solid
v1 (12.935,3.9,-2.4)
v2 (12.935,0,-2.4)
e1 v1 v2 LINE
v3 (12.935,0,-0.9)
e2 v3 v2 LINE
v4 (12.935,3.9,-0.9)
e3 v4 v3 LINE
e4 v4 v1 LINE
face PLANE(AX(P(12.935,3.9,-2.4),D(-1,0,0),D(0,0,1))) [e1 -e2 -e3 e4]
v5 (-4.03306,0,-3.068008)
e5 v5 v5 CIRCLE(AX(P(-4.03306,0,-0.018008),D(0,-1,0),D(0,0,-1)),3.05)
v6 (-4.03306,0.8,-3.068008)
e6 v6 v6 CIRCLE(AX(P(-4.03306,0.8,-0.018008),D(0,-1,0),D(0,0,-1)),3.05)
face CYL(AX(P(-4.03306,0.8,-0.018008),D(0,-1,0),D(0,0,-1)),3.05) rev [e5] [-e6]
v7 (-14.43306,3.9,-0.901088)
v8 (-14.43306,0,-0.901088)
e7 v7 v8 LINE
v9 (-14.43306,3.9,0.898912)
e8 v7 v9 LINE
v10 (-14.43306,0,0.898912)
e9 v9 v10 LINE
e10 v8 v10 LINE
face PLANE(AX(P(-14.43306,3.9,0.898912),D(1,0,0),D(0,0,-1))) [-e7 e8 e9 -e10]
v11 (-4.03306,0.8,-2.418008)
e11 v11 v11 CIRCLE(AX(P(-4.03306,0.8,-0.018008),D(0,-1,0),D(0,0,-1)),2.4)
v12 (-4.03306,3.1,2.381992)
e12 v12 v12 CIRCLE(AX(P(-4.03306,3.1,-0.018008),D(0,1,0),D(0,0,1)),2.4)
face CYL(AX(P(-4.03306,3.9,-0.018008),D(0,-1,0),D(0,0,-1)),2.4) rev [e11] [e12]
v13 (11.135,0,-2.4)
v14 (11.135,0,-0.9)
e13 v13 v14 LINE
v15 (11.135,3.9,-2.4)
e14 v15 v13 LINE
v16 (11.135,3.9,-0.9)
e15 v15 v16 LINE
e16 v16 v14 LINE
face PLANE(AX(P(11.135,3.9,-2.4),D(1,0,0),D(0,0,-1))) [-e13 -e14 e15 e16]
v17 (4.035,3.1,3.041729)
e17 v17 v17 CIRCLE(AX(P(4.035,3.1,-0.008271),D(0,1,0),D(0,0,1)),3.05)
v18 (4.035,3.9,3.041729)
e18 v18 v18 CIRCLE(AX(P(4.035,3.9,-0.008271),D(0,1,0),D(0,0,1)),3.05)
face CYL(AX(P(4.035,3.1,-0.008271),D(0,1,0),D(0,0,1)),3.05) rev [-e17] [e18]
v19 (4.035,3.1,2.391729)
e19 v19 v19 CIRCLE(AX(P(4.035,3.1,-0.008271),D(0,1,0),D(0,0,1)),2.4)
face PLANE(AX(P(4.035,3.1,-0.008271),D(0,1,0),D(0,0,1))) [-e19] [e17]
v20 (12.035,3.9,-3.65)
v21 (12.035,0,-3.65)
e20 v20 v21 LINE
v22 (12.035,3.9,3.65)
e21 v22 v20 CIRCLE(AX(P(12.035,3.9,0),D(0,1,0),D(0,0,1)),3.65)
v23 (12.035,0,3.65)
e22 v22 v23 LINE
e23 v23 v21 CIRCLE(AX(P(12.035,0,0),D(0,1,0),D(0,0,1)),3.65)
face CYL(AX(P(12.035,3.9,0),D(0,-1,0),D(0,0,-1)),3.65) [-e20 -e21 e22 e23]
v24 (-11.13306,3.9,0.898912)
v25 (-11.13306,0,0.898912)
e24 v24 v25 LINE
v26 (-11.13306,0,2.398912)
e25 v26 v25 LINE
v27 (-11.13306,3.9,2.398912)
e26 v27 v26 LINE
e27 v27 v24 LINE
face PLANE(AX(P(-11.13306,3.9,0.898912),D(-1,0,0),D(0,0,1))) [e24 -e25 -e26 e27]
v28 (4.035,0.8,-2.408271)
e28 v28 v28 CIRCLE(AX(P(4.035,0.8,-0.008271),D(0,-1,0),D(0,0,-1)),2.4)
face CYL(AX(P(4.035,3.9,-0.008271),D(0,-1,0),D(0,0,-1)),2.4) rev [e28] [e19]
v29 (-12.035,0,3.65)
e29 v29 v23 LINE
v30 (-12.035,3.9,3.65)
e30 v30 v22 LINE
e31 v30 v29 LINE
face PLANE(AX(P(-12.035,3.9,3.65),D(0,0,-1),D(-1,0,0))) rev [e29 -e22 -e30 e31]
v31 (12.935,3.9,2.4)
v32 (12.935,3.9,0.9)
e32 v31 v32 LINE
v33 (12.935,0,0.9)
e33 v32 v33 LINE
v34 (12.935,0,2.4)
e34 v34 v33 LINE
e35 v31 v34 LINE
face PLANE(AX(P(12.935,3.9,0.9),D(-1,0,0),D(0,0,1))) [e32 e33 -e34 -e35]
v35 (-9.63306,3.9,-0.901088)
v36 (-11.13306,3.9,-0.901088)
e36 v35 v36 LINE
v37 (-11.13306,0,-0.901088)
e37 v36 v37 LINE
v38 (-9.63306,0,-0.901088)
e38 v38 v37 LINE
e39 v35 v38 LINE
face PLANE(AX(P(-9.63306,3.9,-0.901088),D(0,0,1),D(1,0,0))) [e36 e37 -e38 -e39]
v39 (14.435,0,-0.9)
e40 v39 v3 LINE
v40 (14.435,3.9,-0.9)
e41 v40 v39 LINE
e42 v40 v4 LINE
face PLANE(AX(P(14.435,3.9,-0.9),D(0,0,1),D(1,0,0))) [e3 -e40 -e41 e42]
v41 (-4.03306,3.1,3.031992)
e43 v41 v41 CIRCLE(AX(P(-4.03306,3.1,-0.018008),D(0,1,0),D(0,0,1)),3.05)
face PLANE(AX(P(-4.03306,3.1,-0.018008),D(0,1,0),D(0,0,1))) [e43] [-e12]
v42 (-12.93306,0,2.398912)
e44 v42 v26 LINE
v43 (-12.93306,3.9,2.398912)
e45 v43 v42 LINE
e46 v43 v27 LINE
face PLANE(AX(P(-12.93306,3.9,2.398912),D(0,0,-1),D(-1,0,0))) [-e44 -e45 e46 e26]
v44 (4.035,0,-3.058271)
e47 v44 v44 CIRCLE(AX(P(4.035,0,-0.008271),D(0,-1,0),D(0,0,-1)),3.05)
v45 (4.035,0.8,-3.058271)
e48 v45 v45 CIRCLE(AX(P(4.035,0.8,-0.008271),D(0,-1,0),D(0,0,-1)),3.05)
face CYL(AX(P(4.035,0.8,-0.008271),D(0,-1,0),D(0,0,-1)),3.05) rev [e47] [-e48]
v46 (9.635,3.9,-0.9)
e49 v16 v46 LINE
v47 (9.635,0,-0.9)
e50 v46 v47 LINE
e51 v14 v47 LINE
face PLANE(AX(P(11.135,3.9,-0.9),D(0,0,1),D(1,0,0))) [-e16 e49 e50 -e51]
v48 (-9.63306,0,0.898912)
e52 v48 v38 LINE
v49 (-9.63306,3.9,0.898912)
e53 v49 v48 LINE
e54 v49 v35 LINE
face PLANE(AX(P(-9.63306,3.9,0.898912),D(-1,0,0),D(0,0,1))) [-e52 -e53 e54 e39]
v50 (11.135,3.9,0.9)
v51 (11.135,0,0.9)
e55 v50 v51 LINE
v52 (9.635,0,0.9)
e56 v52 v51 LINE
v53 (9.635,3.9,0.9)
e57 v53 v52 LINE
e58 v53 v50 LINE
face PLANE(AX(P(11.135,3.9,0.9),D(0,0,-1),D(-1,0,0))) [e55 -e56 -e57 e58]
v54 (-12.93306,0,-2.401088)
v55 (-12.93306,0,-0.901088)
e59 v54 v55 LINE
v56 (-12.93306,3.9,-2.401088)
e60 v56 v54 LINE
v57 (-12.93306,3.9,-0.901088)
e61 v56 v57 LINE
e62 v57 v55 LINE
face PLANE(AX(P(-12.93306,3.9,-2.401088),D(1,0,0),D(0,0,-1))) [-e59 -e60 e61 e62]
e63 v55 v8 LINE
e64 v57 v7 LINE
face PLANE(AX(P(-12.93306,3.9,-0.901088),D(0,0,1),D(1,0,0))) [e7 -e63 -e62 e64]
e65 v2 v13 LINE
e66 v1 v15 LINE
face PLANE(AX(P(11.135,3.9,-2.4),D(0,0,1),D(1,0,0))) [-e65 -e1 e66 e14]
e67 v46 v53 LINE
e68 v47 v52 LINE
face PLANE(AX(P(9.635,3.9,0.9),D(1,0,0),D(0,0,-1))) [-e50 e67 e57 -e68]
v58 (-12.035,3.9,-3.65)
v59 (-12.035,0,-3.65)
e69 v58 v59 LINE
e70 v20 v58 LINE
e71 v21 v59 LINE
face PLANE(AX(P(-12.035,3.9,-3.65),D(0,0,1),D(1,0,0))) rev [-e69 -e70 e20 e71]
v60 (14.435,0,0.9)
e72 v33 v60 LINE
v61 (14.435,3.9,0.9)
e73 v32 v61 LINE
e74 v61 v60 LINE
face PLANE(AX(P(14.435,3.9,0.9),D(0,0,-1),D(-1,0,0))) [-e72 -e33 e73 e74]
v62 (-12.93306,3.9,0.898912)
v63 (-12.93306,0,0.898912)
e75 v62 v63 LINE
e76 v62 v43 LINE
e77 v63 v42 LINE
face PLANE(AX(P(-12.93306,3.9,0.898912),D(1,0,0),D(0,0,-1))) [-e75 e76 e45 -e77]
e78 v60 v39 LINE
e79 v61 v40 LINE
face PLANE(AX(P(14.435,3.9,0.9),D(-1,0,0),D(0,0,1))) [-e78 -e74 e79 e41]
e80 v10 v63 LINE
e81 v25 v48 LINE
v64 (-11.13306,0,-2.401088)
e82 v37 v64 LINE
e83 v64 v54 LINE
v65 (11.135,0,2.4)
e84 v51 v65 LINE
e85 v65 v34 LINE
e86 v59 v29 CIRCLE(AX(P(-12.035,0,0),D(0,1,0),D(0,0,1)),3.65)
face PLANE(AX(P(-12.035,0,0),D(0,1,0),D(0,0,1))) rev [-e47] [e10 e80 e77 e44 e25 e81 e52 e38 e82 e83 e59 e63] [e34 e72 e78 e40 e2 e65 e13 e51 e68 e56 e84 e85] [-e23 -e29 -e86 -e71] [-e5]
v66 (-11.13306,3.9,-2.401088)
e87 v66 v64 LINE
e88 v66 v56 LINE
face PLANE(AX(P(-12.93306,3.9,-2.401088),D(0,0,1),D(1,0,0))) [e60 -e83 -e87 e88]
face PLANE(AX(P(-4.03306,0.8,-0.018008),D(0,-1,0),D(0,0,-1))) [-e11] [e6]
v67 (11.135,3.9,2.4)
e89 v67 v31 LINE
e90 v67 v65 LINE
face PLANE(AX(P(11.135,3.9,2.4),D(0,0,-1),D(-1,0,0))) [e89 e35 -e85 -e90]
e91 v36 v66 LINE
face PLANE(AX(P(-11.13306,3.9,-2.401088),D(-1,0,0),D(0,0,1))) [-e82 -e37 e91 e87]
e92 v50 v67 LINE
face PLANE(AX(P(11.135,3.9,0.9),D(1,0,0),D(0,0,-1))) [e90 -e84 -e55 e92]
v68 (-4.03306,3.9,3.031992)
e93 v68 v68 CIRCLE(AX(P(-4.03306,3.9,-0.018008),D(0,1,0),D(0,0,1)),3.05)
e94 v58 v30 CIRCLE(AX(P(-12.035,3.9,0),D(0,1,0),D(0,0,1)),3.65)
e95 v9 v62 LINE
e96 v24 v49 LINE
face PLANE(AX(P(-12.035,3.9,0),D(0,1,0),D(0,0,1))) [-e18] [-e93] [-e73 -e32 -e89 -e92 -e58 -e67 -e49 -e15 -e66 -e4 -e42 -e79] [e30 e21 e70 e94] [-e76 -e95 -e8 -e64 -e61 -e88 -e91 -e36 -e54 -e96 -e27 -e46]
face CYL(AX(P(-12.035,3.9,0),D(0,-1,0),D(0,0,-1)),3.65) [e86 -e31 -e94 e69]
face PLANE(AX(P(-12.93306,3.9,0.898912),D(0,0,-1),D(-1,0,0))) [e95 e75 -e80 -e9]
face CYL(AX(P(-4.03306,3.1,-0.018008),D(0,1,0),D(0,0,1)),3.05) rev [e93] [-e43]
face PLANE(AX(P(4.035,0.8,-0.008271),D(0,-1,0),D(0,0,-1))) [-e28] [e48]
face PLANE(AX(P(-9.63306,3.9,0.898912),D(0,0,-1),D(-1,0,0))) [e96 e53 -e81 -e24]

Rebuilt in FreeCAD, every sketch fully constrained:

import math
import FreeCAD as App
import Part
import Sketcher

V = App.Vector

doc = App.newDocument("Part")
params = doc.addObject("Spreadsheet::Sheet", "Params")
for row, (alias, value) in enumerate([
    ("sketch1_diameter", "4.8 mm"),
    ("sketch1_radius", "3.65 mm"),
    ("sketch1_width", "1.8 mm"),
    ("sketch1_width2", "1.5 mm"),
    ("sketch1_width3", "24.07 mm"),
    ("pad1_length", "3.9 mm"),
    ("sketch2_diameter", "6.1 mm"),
    ("pocket1_length", "0.8 mm"),
    ("sketch3_diameter", "6.1 mm"),
    ("pocket2_length", "0.8 mm"),
], start=1):
    params.set(f"A{row}", alias)
    params.set(f"B{row}", "=" + value)
    params.setAlias(f"B{row}", alias)

body = doc.addObject("PartDesign::Body", "Body")

# Sketch on XZ plane
sketch1 = body.newObject("Sketcher::SketchObject", "Sketch")
sketch1.AttachmentSupport = (doc.getObject("XZ_Plane"), [""])
sketch1.MapMode = "FlatFace"
sketch1.addGeometry(Part.LineSegment(V(12, -3.6, 0), V(-12, -3.6, 0)), False)
sketch1.addGeometry(Part.ArcOfCircle(Part.Circle(V(-12, 0, 0), V(0, 0, 1), 3.6), math.radians(90), math.radians(270)), False)
sketch1.addGeometry(Part.LineSegment(V(-12, 3.6, 0), V(12, 3.6, 0)), False)
sketch1.addGeometry(Part.ArcOfCircle(Part.Circle(V(12, 0, 0), V(0, 0, 1), 3.6), math.radians(-90), math.radians(90)), False)
sketch1.addGeometry(Part.LineSegment(V(11.1, -2.4, 0), V(12.9, -2.4, 0)), False)
sketch1.addGeometry(Part.LineSegment(V(12.9, -2.4, 0), V(12.9, -0.9, 0)), False)
sketch1.addGeometry(Part.LineSegment(V(12.9, -0.9, 0), V(14.4, -0.9, 0)), False)
sketch1.addGeometry(Part.LineSegment(V(14.4, -0.9, 0), V(14.4, 0.9, 0)), False)
sketch1.addGeometry(Part.LineSegment(V(14.4, 0.9, 0), V(12.9, 0.9, 0)), False)
sketch1.addGeometry(Part.LineSegment(V(12.9, 0.9, 0), V(12.9, 2.4, 0)), False)
sketch1.addGeometry(Part.LineSegment(V(12.9, 2.4, 0), V(11.1, 2.4, 0)), False)
sketch1.addGeometry(Part.LineSegment(V(11.1, 2.4, 0), V(11.1, 0.9, 0)), False)
sketch1.addGeometry(Part.LineSegment(V(11.1, 0.9, 0), V(9.6, 0.9, 0)), False)
sketch1.addGeometry(Part.LineSegment(V(9.6, 0.9, 0), V(9.6, -0.9, 0)), False)
sketch1.addGeometry(Part.LineSegment(V(9.6, -0.9, 0), V(11.1, -0.9, 0)), False)
sketch1.addGeometry(Part.LineSegment(V(11.1, -0.9, 0), V(11.1, -2.4, 0)), False)
sketch1.addGeometry(Part.Circle(V(4, 0, 0), V(0, 0, 1), 2.4), False)
sketch1.addGeometry(Part.LineSegment(V(-12.9, -2.4, 0), V(-11.1, -2.4, 0)), False)
sketch1.addGeometry(Part.LineSegment(V(-11.1, -2.4, 0), V(-11.1, -0.9, 0)), False)
sketch1.addGeometry(Part.LineSegment(V(-11.1, -0.9, 0), V(-9.6, -0.9, 0)), False)
sketch1.addGeometry(Part.LineSegment(V(-9.6, -0.9, 0), V(-9.6, 0.9, 0)), False)
sketch1.addGeometry(Part.LineSegment(V(-9.6, 0.9, 0), V(-11.1, 0.9, 0)), False)
sketch1.addGeometry(Part.LineSegment(V(-11.1, 0.9, 0), V(-11.1, 2.4, 0)), False)
sketch1.addGeometry(Part.LineSegment(V(-11.1, 2.4, 0), V(-12.9, 2.4, 0)), False)
sketch1.addGeometry(Part.LineSegment(V(-12.9, 2.4, 0), V(-12.9, 0.9, 0)), False)
sketch1.addGeometry(Part.LineSegment(V(-12.9, 0.9, 0), V(-14.4, 0.9, 0)), False)
sketch1.addGeometry(Part.LineSegment(V(-14.4, 0.9, 0), V(-14.4, -0.9, 0)), False)
sketch1.addGeometry(Part.LineSegment(V(-14.4, -0.9, 0), V(-12.9, -0.9, 0)), False)
sketch1.addGeometry(Part.LineSegment(V(-12.9, -0.9, 0), V(-12.9, -2.4, 0)), False)
sketch1.addGeometry(Part.Circle(V(-4, 0, 0), V(0, 0, 1), 2.4), False)
sketch1.addConstraint(Sketcher.Constraint("Tangent", 0, 2, 1, 2))
sketch1.addConstraint(Sketcher.Constraint("Tangent", 1, 1, 2, 1))
sketch1.addConstraint(Sketcher.Constraint("Tangent", 2, 2, 3, 2))
sketch1.addConstraint(Sketcher.Constraint("Tangent", 3, 1, 0, 1))
sketch1.addConstraint(Sketcher.Constraint("Coincident", 4, 2, 5, 1))
sketch1.addConstraint(Sketcher.Constraint("Coincident", 5, 2, 6, 1))
sketch1.addConstraint(Sketcher.Constraint("Coincident", 6, 2, 7, 1))
sketch1.addConstraint(Sketcher.Constraint("Coincident", 7, 2, 8, 1))
sketch1.addConstraint(Sketcher.Constraint("Coincident", 8, 2, 9, 1))
sketch1.addConstraint(Sketcher.Constraint("Coincident", 9, 2, 10, 1))
sketch1.addConstraint(Sketcher.Constraint("Coincident", 10, 2, 11, 1))
sketch1.addConstraint(Sketcher.Constraint("Coincident", 11, 2, 12, 1))
sketch1.addConstraint(Sketcher.Constraint("Coincident", 12, 2, 13, 1))
sketch1.addConstraint(Sketcher.Constraint("Coincident", 13, 2, 14, 1))
sketch1.addConstraint(Sketcher.Constraint("Coincident", 14, 2, 15, 1))
sketch1.addConstraint(Sketcher.Constraint("Coincident", 15, 2, 4, 1))
sketch1.addConstraint(Sketcher.Constraint("Coincident", 17, 2, 18, 1))
sketch1.addConstraint(Sketcher.Constraint("Coincident", 18, 2, 19, 1))
sketch1.addConstraint(Sketcher.Constraint("Coincident", 19, 2, 20, 1))
sketch1.addConstraint(Sketcher.Constraint("Coincident", 20, 2, 21, 1))
sketch1.addConstraint(Sketcher.Constraint("Coincident", 21, 2, 22, 1))
sketch1.addConstraint(Sketcher.Constraint("Coincident", 22, 2, 23, 1))
sketch1.addConstraint(Sketcher.Constraint("Coincident", 23, 2, 24, 1))
sketch1.addConstraint(Sketcher.Constraint("Coincident", 24, 2, 25, 1))
sketch1.addConstraint(Sketcher.Constraint("Coincident", 25, 2, 26, 1))
sketch1.addConstraint(Sketcher.Constraint("Coincident", 26, 2, 27, 1))
sketch1.addConstraint(Sketcher.Constraint("Coincident", 27, 2, 28, 1))
sketch1.addConstraint(Sketcher.Constraint("Coincident", 28, 2, 17, 1))
sketch1.addConstraint(Sketcher.Constraint("Horizontal", 0))
sketch1.addConstraint(Sketcher.Constraint("Horizontal", 2))
sketch1.addConstraint(Sketcher.Constraint("Horizontal", 4))
sketch1.addConstraint(Sketcher.Constraint("Vertical", 5))
sketch1.addConstraint(Sketcher.Constraint("Horizontal", 6))
sketch1.addConstraint(Sketcher.Constraint("Vertical", 7))
sketch1.addConstraint(Sketcher.Constraint("Horizontal", 8))
sketch1.addConstraint(Sketcher.Constraint("Vertical", 9))
sketch1.addConstraint(Sketcher.Constraint("Horizontal", 10))
sketch1.addConstraint(Sketcher.Constraint("Vertical", 11))
sketch1.addConstraint(Sketcher.Constraint("Horizontal", 12))
sketch1.addConstraint(Sketcher.Constraint("Vertical", 13))
sketch1.addConstraint(Sketcher.Constraint("Horizontal", 14))
sketch1.addConstraint(Sketcher.Constraint("Vertical", 15))
sketch1.addConstraint(Sketcher.Constraint("Horizontal", 17))
sketch1.addConstraint(Sketcher.Constraint("Vertical", 18))
sketch1.addConstraint(Sketcher.Constraint("Horizontal", 19))
sketch1.addConstraint(Sketcher.Constraint("Vertical", 20))
sketch1.addConstraint(Sketcher.Constraint("Horizontal", 21))
sketch1.addConstraint(Sketcher.Constraint("Vertical", 22))
sketch1.addConstraint(Sketcher.Constraint("Horizontal", 23))
sketch1.addConstraint(Sketcher.Constraint("Vertical", 24))
sketch1.addConstraint(Sketcher.Constraint("Horizontal", 25))
sketch1.addConstraint(Sketcher.Constraint("Vertical", 26))
sketch1.addConstraint(Sketcher.Constraint("Horizontal", 27))
sketch1.addConstraint(Sketcher.Constraint("Vertical", 28))
sketch1.addConstraint(Sketcher.Constraint("Equal", 16, 29))
sketch1.addConstraint(Sketcher.Constraint("Symmetric", 1, 3, 3, 3, -1, 1))
sketch1.addConstraint(Sketcher.Constraint("Symmetric", 5, 2, 8, 2, -1))
sketch1.addConstraint(Sketcher.Constraint("Symmetric", 11, 2, 14, 2, -1))
sketch1.addConstraint(Sketcher.Constraint("Horizontal", 8, 2, 11, 2))
sketch1.addConstraint(Sketcher.Constraint("Horizontal", 21, 2, 24, 2))
sketch1.addConstraint(Sketcher.Constraint("Horizontal", 19, 2, 26, 2))
sketch1.addConstraint(Sketcher.Constraint("Vertical", 18, 2, 21, 2))
sketch1.addConstraint(Sketcher.Constraint("Vertical", 24, 2, 27, 2))
sketch1.addConstraint(Sketcher.Constraint("Equal", 8, 12))
sketch1.addConstraint(Sketcher.Constraint("Equal", 10, 17))
sketch1.addConstraint(Sketcher.Constraint("Equal", 14, 19))
sketch1.addConstraint(Sketcher.Constraint("Equal", 21, 25))
sketch1.addConstraint(Sketcher.Constraint("Equal", 27, 5))
sketch1.addConstraint(Sketcher.Constraint("Equal", 23, 7))
sketch1.addConstraint(Sketcher.Constraint("Equal", 5, 9))
sketch1.addConstraint(Sketcher.Constraint("Equal", 15, 18))
sketch1.addConstraint(Sketcher.Constraint("Equal", 13, 20))
sketch1.addConstraint(Sketcher.Constraint("Equal", 18, 22))
sketch1.addConstraint(Sketcher.Constraint("Diameter", 16, 4.8))
sketch1.addConstraint(Sketcher.Constraint("Radius", 1, 3.65))
sketch1.addConstraint(Sketcher.Constraint("DistanceX", 4, 1, 4, 2, 1.8))
sketch1.addConstraint(Sketcher.Constraint("DistanceX", 6, 1, 6, 2, 1.5))
sketch1.addConstraint(Sketcher.Constraint("DistanceX", 16, 3, 3, 3, 8.0))
sketch1.addConstraint(Sketcher.Constraint("DistanceX", 0, 2, 0, 1, 24.07))
sketch1.addConstraint(Sketcher.Constraint("DistanceX", 3, 1, 4, 2, 0.9))
sketch1.addConstraint(Sketcher.Constraint("DistanceX", 17, 2, 29, 3, 7.1))
sketch1.addConstraint(Sketcher.Constraint("DistanceY", 16, 3, -1, 1, 0.008271))
sketch1.addConstraint(Sketcher.Constraint("DistanceX", 29, 3, -1, 1, 4.03306))
sketch1.addConstraint(Sketcher.Constraint("DistanceY", 29, 3, -1, 1, 0.018008))
sketch1.addConstraint(Sketcher.Constraint("DistanceY", 17, 2, 29, 3, 2.38308))
sketch1.setExpression("Constraints[73]", "Params.sketch1_diameter")
sketch1.setExpression("Constraints[74]", "Params.sketch1_radius")
sketch1.setExpression("Constraints[75]", "Params.sketch1_width")
sketch1.setExpression("Constraints[76]", "Params.sketch1_width2")
sketch1.setExpression("Constraints[78]", "Params.sketch1_width3")
pad1 = body.newObject("PartDesign::Pad", "Pad")
pad1.Profile = sketch1
pad1.setExpression("Length", "Params.pad1_length")
pad1.Reversed = True

# Sketch on XZ plane
sketch2 = body.newObject("Sketcher::SketchObject", "Sketch001")
sketch2.AttachmentSupport = (doc.getObject("XZ_Plane"), [""])
sketch2.MapMode = "FlatFace"
sketch2.AttachmentOffset = App.Placement(V(0, 0, -3.9), App.Rotation())
sketch2.addGeometry(Part.Circle(V(4, 0, 0), V(0, 0, 1), 3), False)
sketch2.addGeometry(Part.Circle(V(-4, 0, 0), V(0, 0, 1), 3), False)
sketch2.addConstraint(Sketcher.Constraint("Equal", 0, 1))
sketch2.addConstraint(Sketcher.Constraint("Diameter", 0, 6.1))
sketch2.addConstraint(Sketcher.Constraint("DistanceX", -1, 1, 0, 3, 4.035))
sketch2.addConstraint(Sketcher.Constraint("DistanceY", 0, 3, -1, 1, 0.008271))
sketch2.addConstraint(Sketcher.Constraint("DistanceX", 1, 3, -1, 1, 4.03306))
sketch2.addConstraint(Sketcher.Constraint("DistanceY", 1, 3, -1, 1, 0.018008))
sketch2.setExpression("Constraints[1]", "Params.sketch2_diameter")
pocket1 = body.newObject("PartDesign::Pocket", "Pocket")
pocket1.Profile = sketch2
pocket1.setExpression("Length", "Params.pocket1_length")
pocket1.Reversed = True

# Sketch on XZ plane
sketch3 = body.newObject("Sketcher::SketchObject", "Sketch002")
sketch3.AttachmentSupport = (doc.getObject("XZ_Plane"), [""])
sketch3.MapMode = "FlatFace"
sketch3.addGeometry(Part.Circle(V(-4, 0, 0), V(0, 0, 1), 3), False)
sketch3.addGeometry(Part.Circle(V(4, 0, 0), V(0, 0, 1), 3), False)
sketch3.addConstraint(Sketcher.Constraint("Equal", 0, 1))
sketch3.addConstraint(Sketcher.Constraint("Diameter", 0, 6.1))
sketch3.addConstraint(Sketcher.Constraint("DistanceX", -1, 1, 1, 3, 4.035))
sketch3.addConstraint(Sketcher.Constraint("DistanceX", 0, 3, -1, 1, 4.03306))
sketch3.addConstraint(Sketcher.Constraint("DistanceY", 0, 3, -1, 1, 0.018008))
sketch3.addConstraint(Sketcher.Constraint("DistanceY", 1, 3, -1, 1, 0.008271))
sketch3.setExpression("Constraints[1]", "Params.sketch3_diameter")
pocket2 = body.newObject("PartDesign::Pocket", "Pocket001")
pocket2.Profile = sketch3
pocket2.setExpression("Length", "Params.pocket2_length")

doc.recompute()
